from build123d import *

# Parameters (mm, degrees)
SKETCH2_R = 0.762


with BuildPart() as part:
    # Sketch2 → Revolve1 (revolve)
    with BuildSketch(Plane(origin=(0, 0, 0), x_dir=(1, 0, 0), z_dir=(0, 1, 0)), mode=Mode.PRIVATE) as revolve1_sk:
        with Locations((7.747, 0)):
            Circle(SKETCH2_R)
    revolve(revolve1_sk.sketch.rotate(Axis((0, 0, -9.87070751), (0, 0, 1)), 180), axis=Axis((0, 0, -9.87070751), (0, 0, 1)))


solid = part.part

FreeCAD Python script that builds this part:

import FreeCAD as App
import Part
import Sketcher
Q = App.Units.Quantity

doc = App.newDocument("Part")
body = doc.addObject("PartDesign::Body", "Body")

sketch1 = body.newObject("Sketcher::SketchObject", "Sketch")
sketch1.AttachmentSupport = (doc.getObject("XZ_Plane"), [""])
sketch1.MapMode = "FlatFace"
sketch1.addGeometry(Part.Circle(App.Vector(7.7, 0, 0), App.Vector(0, 0, 1), 0.8), False)
sketch1.addConstraint([
    Sketcher.Constraint("PointOnObject", 0, 3, -1),
    Sketcher.Constraint("Diameter", 0, Q("0.06 in")),
    Sketcher.Constraint("DistanceX", -1, 1, 0, 3, Q("0.305 in")),
])
revolution = body.newObject("PartDesign::Revolution", "Revolution")
revolution.Profile = sketch1
revolution.ReferenceAxis = (sketch1, ["V_Axis"])
revolution.Angle = 360

doc.recompute()
